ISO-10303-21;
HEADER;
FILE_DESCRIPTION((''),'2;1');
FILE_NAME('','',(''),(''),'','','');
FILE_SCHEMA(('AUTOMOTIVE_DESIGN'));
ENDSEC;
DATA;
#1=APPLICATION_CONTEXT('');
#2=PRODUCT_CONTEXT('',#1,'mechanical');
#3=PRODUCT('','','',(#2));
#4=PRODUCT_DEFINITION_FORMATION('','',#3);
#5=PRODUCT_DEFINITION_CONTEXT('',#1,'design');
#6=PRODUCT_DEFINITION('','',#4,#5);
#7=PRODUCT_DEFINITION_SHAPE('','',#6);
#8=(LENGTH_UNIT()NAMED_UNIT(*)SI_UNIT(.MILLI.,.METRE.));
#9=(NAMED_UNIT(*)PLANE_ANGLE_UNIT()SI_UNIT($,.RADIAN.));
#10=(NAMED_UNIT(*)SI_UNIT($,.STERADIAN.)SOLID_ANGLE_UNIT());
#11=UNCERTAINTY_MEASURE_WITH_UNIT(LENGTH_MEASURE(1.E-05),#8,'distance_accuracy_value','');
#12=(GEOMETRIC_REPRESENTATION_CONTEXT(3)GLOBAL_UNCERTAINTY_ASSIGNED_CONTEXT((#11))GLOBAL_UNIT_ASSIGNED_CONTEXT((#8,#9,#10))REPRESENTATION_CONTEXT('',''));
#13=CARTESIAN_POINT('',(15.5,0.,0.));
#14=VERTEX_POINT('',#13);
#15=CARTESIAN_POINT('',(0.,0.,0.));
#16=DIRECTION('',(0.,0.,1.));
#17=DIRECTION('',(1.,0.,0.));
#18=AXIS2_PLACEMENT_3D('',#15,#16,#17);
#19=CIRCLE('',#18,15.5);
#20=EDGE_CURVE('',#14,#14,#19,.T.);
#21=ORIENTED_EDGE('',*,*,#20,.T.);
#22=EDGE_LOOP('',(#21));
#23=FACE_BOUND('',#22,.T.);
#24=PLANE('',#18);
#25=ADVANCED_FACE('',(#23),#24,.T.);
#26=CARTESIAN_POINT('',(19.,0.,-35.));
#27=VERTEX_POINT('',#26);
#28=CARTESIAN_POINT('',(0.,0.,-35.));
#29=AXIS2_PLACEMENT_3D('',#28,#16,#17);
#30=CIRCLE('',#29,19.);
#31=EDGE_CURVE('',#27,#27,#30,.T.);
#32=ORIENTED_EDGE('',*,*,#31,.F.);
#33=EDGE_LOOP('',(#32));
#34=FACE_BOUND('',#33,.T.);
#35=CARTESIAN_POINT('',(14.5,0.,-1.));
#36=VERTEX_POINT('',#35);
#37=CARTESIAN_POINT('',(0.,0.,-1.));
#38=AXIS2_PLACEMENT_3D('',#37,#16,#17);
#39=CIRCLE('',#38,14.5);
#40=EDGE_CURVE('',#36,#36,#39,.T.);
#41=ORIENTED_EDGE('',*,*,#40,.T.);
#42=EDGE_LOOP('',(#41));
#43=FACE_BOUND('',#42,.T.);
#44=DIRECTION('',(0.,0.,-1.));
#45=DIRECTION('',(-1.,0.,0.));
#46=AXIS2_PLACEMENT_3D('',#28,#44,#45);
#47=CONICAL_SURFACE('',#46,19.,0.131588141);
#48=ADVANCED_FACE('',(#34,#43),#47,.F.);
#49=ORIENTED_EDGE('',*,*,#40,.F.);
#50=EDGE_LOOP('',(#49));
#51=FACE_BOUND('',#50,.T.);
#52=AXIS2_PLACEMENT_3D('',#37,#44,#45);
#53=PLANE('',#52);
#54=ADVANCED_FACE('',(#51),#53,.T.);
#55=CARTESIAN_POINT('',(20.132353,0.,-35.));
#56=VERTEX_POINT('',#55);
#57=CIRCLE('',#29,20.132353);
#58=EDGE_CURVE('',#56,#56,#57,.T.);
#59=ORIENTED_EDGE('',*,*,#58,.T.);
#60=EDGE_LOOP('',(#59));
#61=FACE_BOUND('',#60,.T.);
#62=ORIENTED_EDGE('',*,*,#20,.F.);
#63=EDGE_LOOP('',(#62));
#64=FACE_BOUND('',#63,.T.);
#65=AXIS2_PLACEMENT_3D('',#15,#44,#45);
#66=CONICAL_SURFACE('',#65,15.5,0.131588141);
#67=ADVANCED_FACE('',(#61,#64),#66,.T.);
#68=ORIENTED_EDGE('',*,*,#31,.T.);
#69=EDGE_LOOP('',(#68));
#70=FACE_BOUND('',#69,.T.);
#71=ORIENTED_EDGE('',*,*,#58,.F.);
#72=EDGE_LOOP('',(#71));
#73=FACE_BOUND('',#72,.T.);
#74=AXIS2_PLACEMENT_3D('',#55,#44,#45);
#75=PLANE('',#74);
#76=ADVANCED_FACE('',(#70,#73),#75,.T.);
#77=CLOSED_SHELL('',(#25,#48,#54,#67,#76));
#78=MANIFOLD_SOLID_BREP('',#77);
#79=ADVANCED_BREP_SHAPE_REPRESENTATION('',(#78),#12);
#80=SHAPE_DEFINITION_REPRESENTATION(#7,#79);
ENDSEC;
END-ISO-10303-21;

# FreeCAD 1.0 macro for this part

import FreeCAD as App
import Part
import Sketcher
Q = App.Units.Quantity


def add_polygon(sketch, points):
    """Adds a closed chain of lines whose ends are joined by coincident constraints."""
    first, n = sketch.GeometryCount, len(points)
    for a, b in zip(points, points[1:] + points[:1]):
        sketch.addGeometry(Part.LineSegment(App.Vector(*a, 0), App.Vector(*b, 0)), False)
    for i in range(n):
        sketch.addConstraint(Sketcher.Constraint("Coincident", first + i, 2, first + (i + 1) % n, 1))

doc = App.newDocument("Part")
body = doc.addObject("PartDesign::Body", "Body")

# Sketch on XZ plane
sketch1 = doc.addObject("Sketcher::SketchObject", "Sketch")
body.addObject(sketch1)
sketch1.AttachmentSupport = (doc.XZ_Plane, [""])
sketch1.MapMode = "FlatFace"
add_polygon(sketch1, [(0, -1), (0, 0), (15.5, 0), (20.132353, -35), (19, -35), (14.5, -1)])  # lines 0-5
sketch1.addConstraint(Sketcher.Constraint("Vertical", 0))
sketch1.addConstraint(Sketcher.Constraint("Horizontal", 1))
sketch1.addConstraint(Sketcher.Constraint("Horizontal", 3))
sketch1.addConstraint(Sketcher.Constraint("Horizontal", 5))
sketch1.addConstraint(Sketcher.Constraint("Coincident", 0, 2, -1, 1))
sketch1.addConstraint(Sketcher.Constraint("Parallel", 2, 4))
sketch1.addConstraint(Sketcher.Constraint("DistanceY", 0, 1, 0, 2, Q("1 mm")))
sketch1.addConstraint(Sketcher.Constraint("DistanceX", 1, 1, 1, 2, Q("15.5 mm")))
sketch1.addConstraint(Sketcher.Constraint("DistanceX", 5, 2, 5, 1, Q("14.5 mm")))
sketch1.addConstraint(Sketcher.Constraint("DistanceY", 2, 2, -1, 1, Q("35 mm")))
sketch1.addConstraint(Sketcher.Constraint("DistanceX", -1, 1, 3, 2, Q("19 mm")))
revolution = doc.addObject("PartDesign::Revolution", "Revolution")
body.addObject(revolution)
revolution.Profile = sketch1
revolution.ReferenceAxis = (sketch1, ["V_Axis"])
revolution.Angle = 360

doc.recompute()
